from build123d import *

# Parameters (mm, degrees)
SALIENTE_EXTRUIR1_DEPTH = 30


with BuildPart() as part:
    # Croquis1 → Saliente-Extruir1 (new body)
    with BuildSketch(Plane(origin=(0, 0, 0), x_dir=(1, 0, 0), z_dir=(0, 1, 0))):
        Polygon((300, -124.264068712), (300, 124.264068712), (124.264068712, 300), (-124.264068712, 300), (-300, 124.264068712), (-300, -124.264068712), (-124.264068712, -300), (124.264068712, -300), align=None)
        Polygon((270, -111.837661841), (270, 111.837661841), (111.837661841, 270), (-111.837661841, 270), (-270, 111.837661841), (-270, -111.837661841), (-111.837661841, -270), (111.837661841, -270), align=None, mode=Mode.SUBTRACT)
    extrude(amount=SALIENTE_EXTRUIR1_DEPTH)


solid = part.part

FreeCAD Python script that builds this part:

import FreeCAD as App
import Part
import Sketcher
Q = App.Units.Quantity


def add_polygon(sketch, points):
    """Adds a closed chain of lines whose ends are joined by coincident constraints."""
    first, n = sketch.GeometryCount, len(points)
    for a, b in zip(points, points[1:] + points[:1]):
        sketch.addGeometry(Part.LineSegment(App.Vector(*a, 0), App.Vector(*b, 0)), False)
    for i in range(n):
        sketch.addConstraint(Sketcher.Constraint("Coincident", first + i, 2, first + (i + 1) % n, 1))

doc = App.newDocument("Part")
body = doc.addObject("PartDesign::Body", "Body")

sketch1 = body.newObject("Sketcher::SketchObject", "Sketch")
sketch1.AttachmentSupport = (doc.getObject("XZ_Plane"), [""])
sketch1.MapMode = "FlatFace"
add_polygon(sketch1, [(300, 124), (300, -124), (124, -300), (-124, -300), (-300, -124), (-300, 124), (-124, 300), (124, 300)])
add_polygon(sketch1, [(270, -112), (270, 112), (112, 270), (-112, 270), (-270, 112), (-270, -112), (-112, -270), (112, -270)])
sketch1.addConstraint(Sketcher.Constraint("Vertical", 0))
sketch1.addConstraint(Sketcher.Constraint("Horizontal", 2))
sketch1.addConstraint(Sketcher.Constraint("Vertical", 4))
sketch1.addConstraint(Sketcher.Constraint("Horizontal", 6))
sketch1.addConstraint(Sketcher.Constraint("Vertical", 8))
sketch1.addConstraint(Sketcher.Constraint("Horizontal", 10))
sketch1.addConstraint(Sketcher.Constraint("Vertical", 12))
sketch1.addConstraint(Sketcher.Constraint("Horizontal", 14))
sketch1.addConstraint(Sketcher.Constraint("Symmetric", 0, 2, 4, 2, -1, 1))
sketch1.addConstraint(Sketcher.Constraint("Symmetric", 1, 2, 5, 2, -1, 1))
sketch1.addConstraint(Sketcher.Constraint("Symmetric", 8, 2, 12, 2, -1, 1))
sketch1.addConstraint(Sketcher.Constraint("Symmetric", 9, 2, 13, 2, -1, 1))
sketch1.addConstraint(Sketcher.Constraint("Perpendicular", 1, 3))
sketch1.addConstraint(Sketcher.Constraint("Perpendicular", 5, 7))
sketch1.addConstraint(Sketcher.Constraint("Parallel", 7, 9))
sketch1.addConstraint(Sketcher.Constraint("Perpendicular", 9, 11))
sketch1.addConstraint(Sketcher.Constraint("Perpendicular", 13, 15))
sketch1.addConstraint(Sketcher.Constraint("Horizontal", 0, 2, 3, 2))
sketch1.addConstraint(Sketcher.Constraint("Horizontal", 4, 2, 7, 2))
sketch1.addConstraint(Sketcher.Constraint("Horizontal", 8, 2, 11, 2))
sketch1.addConstraint(Sketcher.Constraint("Horizontal", 12, 2, 15, 2))
sketch1.addConstraint(Sketcher.Constraint("Vertical", 2, 2, 5, 2))
sketch1.addConstraint(Sketcher.Constraint("Equal", 6, 0))
sketch1.addConstraint(Sketcher.Constraint("Equal", 14, 8))
sketch1.addConstraint(Sketcher.Constraint("DistanceX", -1, 1, 0, 2, Q("300 mm")))
sketch1.addConstraint(Sketcher.Constraint("DistanceX", -1, 1, 8, 2, Q("270 mm")))
sketch1.addConstraint(Sketcher.Constraint("DistanceX", 2, 2, 2, 1, Q("248.528137 mm")))
sketch1.addConstraint(Sketcher.Constraint("DistanceX", 10, 2, 10, 1, Q("223.675324 mm")))
pad1 = body.newObject("PartDesign::Pad", "Pad")
pad1.Profile = sketch1
pad1.Length = 30
pad1.Reversed = True

doc.recompute()
